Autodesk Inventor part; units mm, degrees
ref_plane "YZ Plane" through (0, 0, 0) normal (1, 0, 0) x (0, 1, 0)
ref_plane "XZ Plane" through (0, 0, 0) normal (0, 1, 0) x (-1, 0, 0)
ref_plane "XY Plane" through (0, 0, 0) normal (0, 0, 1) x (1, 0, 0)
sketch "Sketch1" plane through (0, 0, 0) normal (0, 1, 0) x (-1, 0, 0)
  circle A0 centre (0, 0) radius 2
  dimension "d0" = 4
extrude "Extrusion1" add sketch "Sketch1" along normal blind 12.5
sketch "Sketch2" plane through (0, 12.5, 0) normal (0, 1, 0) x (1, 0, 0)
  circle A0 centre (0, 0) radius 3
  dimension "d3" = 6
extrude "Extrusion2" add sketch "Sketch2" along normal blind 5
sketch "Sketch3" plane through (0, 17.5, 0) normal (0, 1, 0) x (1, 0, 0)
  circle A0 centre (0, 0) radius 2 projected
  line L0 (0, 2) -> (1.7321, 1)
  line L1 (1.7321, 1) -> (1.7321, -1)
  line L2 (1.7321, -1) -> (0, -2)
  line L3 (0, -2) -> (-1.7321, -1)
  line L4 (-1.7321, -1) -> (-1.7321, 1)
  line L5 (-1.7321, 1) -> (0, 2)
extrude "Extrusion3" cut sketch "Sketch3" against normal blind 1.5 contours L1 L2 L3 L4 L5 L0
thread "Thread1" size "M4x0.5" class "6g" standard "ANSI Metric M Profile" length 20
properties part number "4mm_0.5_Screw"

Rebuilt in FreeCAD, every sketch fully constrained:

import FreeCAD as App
import Part
import Sketcher
from FreeCAD import Vector
Q = App.Units.Quantity


def add_polygon(sketch, points):
    """Adds a closed chain of lines whose ends are joined by coincident constraints."""
    first, n = sketch.GeometryCount, len(points)
    for a, b in zip(points, points[1:] + points[:1]):
        sketch.addGeometry(Part.LineSegment(App.Vector(*a, 0), App.Vector(*b, 0)), False)
    for i in range(n):
        sketch.addConstraint(Sketcher.Constraint("Coincident", first + i, 2, first + (i + 1) % n, 1))

doc = App.newDocument("Part")
params = doc.addObject("Spreadsheet::Sheet", "Params")
for row, (alias, value) in enumerate([
    ("sketch1_diameter", "4 mm"),
    ("pad1_length", "12.5 mm"),
    ("sketch2_diameter", "6 mm"),
    ("pad2_length", "5 mm"),
    ("sketch3_height", "2 mm"),
    ("sketch3_length", "2 mm"),
    ("pocket1_length", "1.5 mm"),
], start=1):
    params.set(f"A{row}", alias)
    params.set(f"B{row}", "=" + value)
    params.setAlias(f"B{row}", alias)

body = doc.addObject("PartDesign::Body", "Body")

# Sketch on XZ plane
sketch1 = doc.addObject("Sketcher::SketchObject", "Sketch")
body.addObject(sketch1)
sketch1.AttachmentSupport = (doc.XZ_Plane, [""])
sketch1.MapMode = "FlatFace"
sketch1.addGeometry(Part.Circle(Vector(0, 0, 0), Vector(0, 0, 1), 2), False)
sketch1.addConstraint([
    Sketcher.Constraint("Coincident", 0, 3, -1, 1),
    Sketcher.Constraint("Diameter", 0, 4.0),
])
sketch1.setExpression("Constraints[1]", "Params.sketch1_diameter")
pad1 = doc.addObject("PartDesign::Pad", "Pad")
body.addObject(pad1)
pad1.Profile = sketch1
pad1.setExpression("Length", "Params.pad1_length")
pad1.Reversed = True

# Sketch on XZ plane
sketch2 = doc.addObject("Sketcher::SketchObject", "Sketch001")
body.addObject(sketch2)
sketch2.AttachmentSupport = (doc.XZ_Plane, [""])
sketch2.MapMode = "FlatFace"
sketch2.AttachmentOffset = App.Placement(Vector(0, 0, -12.5), App.Rotation())
sketch2.addGeometry(Part.Circle(Vector(0, 0, 0), Vector(0, 0, 1), 3), False)
sketch2.addConstraint([
    Sketcher.Constraint("Coincident", 0, 3, -1, 1),
    Sketcher.Constraint("Diameter", 0, 6.0),
])
sketch2.setExpression("Constraints[1]", "Params.sketch2_diameter")
pad2 = doc.addObject("PartDesign::Pad", "Pad001")
body.addObject(pad2)
pad2.Profile = sketch2
pad2.setExpression("Length", "Params.pad2_length")
pad2.Reversed = True

# Sketch on XZ plane
sketch3 = doc.addObject("Sketcher::SketchObject", "Sketch002")
body.addObject(sketch3)
sketch3.AttachmentSupport = (doc.XZ_Plane, [""])
sketch3.MapMode = "FlatFace"
sketch3.AttachmentOffset = App.Placement(Vector(0, 0, -17.5), App.Rotation())
add_polygon(sketch3, [(1.7, 1), (1.7, -1), (0, -2), (-1.7, -1), (-1.7, 1), (0, 2)])  # lines 0-5
sketch3.addConstraint([
    Sketcher.Constraint("Vertical", 0),
    Sketcher.Constraint("Vertical", 3),
    Sketcher.Constraint("Symmetric", 0, 2, 3, 2, -1, 1),
    Sketcher.Constraint("Symmetric", 1, 2, 4, 2, -1, 1),
    Sketcher.Constraint("PointOnObject", 1, 2, -2),
    Sketcher.Constraint("Parallel", 2, 5),
    Sketcher.Constraint("Horizontal", 0, 2, 2, 2),
    Sketcher.Constraint("DistanceY", 0, 2, 0, 1, 2.0),
    Sketcher.Constraint("Angle", 1, Q("-150.0007 deg")),
    Sketcher.Constraint("Distance", 1, 2.0),
])
sketch3.setExpression("Constraints[13]", "Params.sketch3_height")
sketch3.setExpression("Constraints[15]", "Params.sketch3_length")
pocket1 = doc.addObject("PartDesign::Pocket", "Pocket")
body.addObject(pocket1)
pocket1.Profile = sketch3
pocket1.setExpression("Length", "Params.pocket1_length")
pocket1.Reversed = True

doc.recompute()
